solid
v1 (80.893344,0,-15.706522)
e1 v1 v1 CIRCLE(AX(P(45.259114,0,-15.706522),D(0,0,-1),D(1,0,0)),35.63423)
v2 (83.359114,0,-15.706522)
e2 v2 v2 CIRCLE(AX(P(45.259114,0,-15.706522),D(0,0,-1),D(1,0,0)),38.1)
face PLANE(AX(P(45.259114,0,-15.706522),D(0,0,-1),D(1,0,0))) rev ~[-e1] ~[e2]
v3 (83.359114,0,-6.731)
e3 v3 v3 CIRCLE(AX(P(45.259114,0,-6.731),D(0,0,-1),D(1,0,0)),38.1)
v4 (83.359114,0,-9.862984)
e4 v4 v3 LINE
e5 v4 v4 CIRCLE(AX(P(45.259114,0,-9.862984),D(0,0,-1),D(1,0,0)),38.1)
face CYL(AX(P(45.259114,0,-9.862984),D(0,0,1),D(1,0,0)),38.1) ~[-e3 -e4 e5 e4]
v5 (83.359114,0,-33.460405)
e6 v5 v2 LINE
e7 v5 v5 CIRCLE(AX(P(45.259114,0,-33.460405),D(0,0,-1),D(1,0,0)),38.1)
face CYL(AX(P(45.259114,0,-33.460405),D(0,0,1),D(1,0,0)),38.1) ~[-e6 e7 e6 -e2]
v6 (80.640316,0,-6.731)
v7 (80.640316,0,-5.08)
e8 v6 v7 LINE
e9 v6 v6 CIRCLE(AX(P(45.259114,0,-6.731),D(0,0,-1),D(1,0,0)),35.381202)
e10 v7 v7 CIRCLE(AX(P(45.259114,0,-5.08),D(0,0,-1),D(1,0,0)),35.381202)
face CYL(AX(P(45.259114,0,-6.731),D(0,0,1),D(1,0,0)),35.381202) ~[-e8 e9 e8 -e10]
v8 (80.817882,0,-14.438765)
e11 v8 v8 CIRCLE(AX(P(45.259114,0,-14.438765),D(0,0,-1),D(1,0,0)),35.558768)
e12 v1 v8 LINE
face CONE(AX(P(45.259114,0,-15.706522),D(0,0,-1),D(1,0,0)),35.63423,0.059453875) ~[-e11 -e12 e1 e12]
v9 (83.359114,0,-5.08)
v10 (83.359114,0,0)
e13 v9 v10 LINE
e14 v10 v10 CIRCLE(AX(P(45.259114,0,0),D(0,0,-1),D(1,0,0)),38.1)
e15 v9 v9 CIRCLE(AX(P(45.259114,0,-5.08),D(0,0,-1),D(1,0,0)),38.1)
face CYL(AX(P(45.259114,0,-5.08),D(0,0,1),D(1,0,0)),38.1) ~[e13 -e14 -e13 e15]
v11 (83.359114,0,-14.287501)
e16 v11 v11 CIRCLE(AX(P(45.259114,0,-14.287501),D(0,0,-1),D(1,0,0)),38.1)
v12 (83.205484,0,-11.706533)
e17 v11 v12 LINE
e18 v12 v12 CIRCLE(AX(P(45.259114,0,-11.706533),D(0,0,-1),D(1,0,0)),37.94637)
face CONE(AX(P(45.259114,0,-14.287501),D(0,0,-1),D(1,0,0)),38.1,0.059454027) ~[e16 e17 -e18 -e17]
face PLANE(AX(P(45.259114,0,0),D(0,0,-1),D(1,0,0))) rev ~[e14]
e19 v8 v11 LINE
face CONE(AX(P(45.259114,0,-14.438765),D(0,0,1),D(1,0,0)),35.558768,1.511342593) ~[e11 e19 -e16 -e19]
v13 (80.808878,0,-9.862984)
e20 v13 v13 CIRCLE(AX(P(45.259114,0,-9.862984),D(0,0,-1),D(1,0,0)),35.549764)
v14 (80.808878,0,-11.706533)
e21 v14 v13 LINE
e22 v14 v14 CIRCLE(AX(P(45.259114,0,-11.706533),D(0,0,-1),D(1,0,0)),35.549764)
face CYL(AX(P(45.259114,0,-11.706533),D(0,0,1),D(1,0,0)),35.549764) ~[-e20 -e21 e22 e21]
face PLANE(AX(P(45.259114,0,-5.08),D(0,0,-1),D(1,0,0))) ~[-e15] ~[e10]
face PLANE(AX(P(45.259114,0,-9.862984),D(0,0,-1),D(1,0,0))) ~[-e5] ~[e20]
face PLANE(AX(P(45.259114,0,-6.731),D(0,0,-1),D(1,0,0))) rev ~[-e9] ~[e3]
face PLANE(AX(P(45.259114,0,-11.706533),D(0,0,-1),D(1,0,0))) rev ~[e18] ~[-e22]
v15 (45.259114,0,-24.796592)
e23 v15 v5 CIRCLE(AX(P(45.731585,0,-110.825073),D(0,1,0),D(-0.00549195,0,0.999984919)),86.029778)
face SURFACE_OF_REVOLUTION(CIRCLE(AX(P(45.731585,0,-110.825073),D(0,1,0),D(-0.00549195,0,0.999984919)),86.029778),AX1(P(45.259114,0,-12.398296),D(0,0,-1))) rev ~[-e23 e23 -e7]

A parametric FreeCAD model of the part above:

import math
import FreeCAD as App
import Part
import Sketcher
from FreeCAD import Vector
Q = App.Units.Quantity

doc = App.newDocument("Part")
body = doc.addObject("PartDesign::Body", "Body")

# Sketch on XZ plane
sketch1 = body.newObject("Sketcher::SketchObject", "Sketch")
sketch1.AttachmentSupport = (doc.getObject("XZ_Plane"), [""])
sketch1.MapMode = "FlatFace"
sketch1.addGeometry([
    Part.LineSegment(Vector(83.4, -5.1, 0), Vector(83.4, 0, 0)),  # 0
    Part.LineSegment(Vector(83.4, 0, 0), Vector(45.3, 0, 0)),  # 1
    Part.LineSegment(Vector(45.3, 0, 0), Vector(45.3, -24.8, 0)),  # 2
    Part.ArcOfCircle(Part.Circle(Vector(45.7, -110.8, 0), Vector(0, 0, 1), 86), math.radians(64), math.radians(90)),  # 3
    Part.LineSegment(Vector(83.4, -33.5, 0), Vector(83.4, -15.7, 0)),  # 4
    Part.LineSegment(Vector(83.4, -15.7, 0), Vector(80.9, -15.7, 0)),  # 5
    Part.LineSegment(Vector(80.9, -15.7, 0), Vector(80.8, -14.4, 0)),  # 6
    Part.LineSegment(Vector(80.8, -14.4, 0), Vector(83.4, -14.3, 0)),  # 7
    Part.LineSegment(Vector(83.4, -14.3, 0), Vector(83.2, -11.7, 0)),  # 8
    Part.LineSegment(Vector(83.2, -11.7, 0), Vector(80.8, -11.7, 0)),  # 9
    Part.LineSegment(Vector(80.8, -11.7, 0), Vector(80.8, -9.9, 0)),  # 10
    Part.LineSegment(Vector(80.8, -9.9, 0), Vector(83.4, -9.9, 0)),  # 11
    Part.LineSegment(Vector(83.4, -9.9, 0), Vector(83.4, -6.7, 0)),  # 12
    Part.LineSegment(Vector(83.4, -6.7, 0), Vector(80.6, -6.7, 0)),  # 13
    Part.LineSegment(Vector(80.6, -6.7, 0), Vector(80.6, -5.1, 0)),  # 14
    Part.LineSegment(Vector(80.6, -5.1, 0), Vector(83.4, -5.1, 0)),  # 15
], False)
sketch1.addGeometry(Part.LineSegment(Vector(45.3, 0, 0), Vector(45.3, -110.8, 0)), True)  # axis
sketch1.addConstraint([
    Sketcher.Constraint("Coincident", 0, 2, 1, 1),
    Sketcher.Constraint("Coincident", 1, 2, 2, 1),
    Sketcher.Constraint("Coincident", 2, 2, 3, 2),
    Sketcher.Constraint("Coincident", 3, 1, 4, 1),
    Sketcher.Constraint("Coincident", 4, 2, 5, 1),
    Sketcher.Constraint("Coincident", 5, 2, 6, 1),
    Sketcher.Constraint("Coincident", 6, 2, 7, 1),
    Sketcher.Constraint("Coincident", 7, 2, 8, 1),
    Sketcher.Constraint("Coincident", 8, 2, 9, 1),
    Sketcher.Constraint("Coincident", 9, 2, 10, 1),
    Sketcher.Constraint("Coincident", 10, 2, 11, 1),
    Sketcher.Constraint("Coincident", 11, 2, 12, 1),
    Sketcher.Constraint("Coincident", 12, 2, 13, 1),
    Sketcher.Constraint("Coincident", 13, 2, 14, 1),
    Sketcher.Constraint("Coincident", 14, 2, 15, 1),
    Sketcher.Constraint("Coincident", 15, 2, 0, 1),
    Sketcher.Constraint("Vertical", 0),
    Sketcher.Constraint("Horizontal", 1),
    Sketcher.Constraint("Vertical", 2),
    Sketcher.Constraint("Vertical", 4),
    Sketcher.Constraint("Horizontal", 5),
    Sketcher.Constraint("Horizontal", 9),
    Sketcher.Constraint("Vertical", 10),
    Sketcher.Constraint("Horizontal", 11),
    Sketcher.Constraint("Vertical", 12),
    Sketcher.Constraint("Horizontal", 13),
    Sketcher.Constraint("Vertical", 14),
    Sketcher.Constraint("Horizontal", 15),
    Sketcher.Constraint("Vertical", 16),
    Sketcher.Constraint("Coincident", 16, 1, 1, 2),
    Sketcher.Constraint("PointOnObject", 0, 2, -1),
    Sketcher.Constraint("Perpendicular", 6, 7),
    Sketcher.Constraint("Perpendicular", 7, 8),
    Sketcher.Constraint("Horizontal", 3, 3, 16, 2),
    Sketcher.Constraint("Vertical", 0, 2, 3, 1),
    Sketcher.Constraint("Vertical", 4, 2, 7, 2),
    Sketcher.Constraint("Vertical", 7, 2, 11, 2),
    Sketcher.Constraint("DistanceX", 1, 2, 1, 1, Q("1.5 in")),
    Sketcher.Constraint("DistanceY", 0, 1, 0, 2, Q("0.2 in")),
    Sketcher.Constraint("Distance", 6, Q("0.05 in")),
    Sketcher.Constraint("DistanceY", 14, 1, 14, 2, Q("0.065 in")),
    Sketcher.Constraint("DistanceY", 7, 2, -1, 1, Q("0.5625 in")),
    Sketcher.Constraint("Radius", 3, 86.029778),
    Sketcher.Constraint("DistanceX", 6, 2, 8, 2, Q("0.0940001 in")),
    Sketcher.Constraint("DistanceX", 13, 2, 13, 1, 2.718798),
    Sketcher.Constraint("DistanceX", 5, 2, 5, 1, 2.46577),
    Sketcher.Constraint("DistanceY", 10, 1, 10, 2, 1.843549),
    Sketcher.Constraint("Distance", 7, 2.54573),
    Sketcher.Constraint("DistanceX", 9, 2, 9, 1, 2.396606),
    Sketcher.Constraint("DistanceY", 2, 2, 2, 1, 24.796592),
    Sketcher.Constraint("DistanceY", 4, 1, 4, 2, 17.753883),
    Sketcher.Constraint("DistanceX", -1, 1, 6, 2, 80.817882),
])
revolution = body.newObject("PartDesign::Revolution", "Revolution")
revolution.Profile = sketch1
revolution.ReferenceAxis = (sketch1, ["Axis0"])
revolution.Angle = 360

doc.recompute()
